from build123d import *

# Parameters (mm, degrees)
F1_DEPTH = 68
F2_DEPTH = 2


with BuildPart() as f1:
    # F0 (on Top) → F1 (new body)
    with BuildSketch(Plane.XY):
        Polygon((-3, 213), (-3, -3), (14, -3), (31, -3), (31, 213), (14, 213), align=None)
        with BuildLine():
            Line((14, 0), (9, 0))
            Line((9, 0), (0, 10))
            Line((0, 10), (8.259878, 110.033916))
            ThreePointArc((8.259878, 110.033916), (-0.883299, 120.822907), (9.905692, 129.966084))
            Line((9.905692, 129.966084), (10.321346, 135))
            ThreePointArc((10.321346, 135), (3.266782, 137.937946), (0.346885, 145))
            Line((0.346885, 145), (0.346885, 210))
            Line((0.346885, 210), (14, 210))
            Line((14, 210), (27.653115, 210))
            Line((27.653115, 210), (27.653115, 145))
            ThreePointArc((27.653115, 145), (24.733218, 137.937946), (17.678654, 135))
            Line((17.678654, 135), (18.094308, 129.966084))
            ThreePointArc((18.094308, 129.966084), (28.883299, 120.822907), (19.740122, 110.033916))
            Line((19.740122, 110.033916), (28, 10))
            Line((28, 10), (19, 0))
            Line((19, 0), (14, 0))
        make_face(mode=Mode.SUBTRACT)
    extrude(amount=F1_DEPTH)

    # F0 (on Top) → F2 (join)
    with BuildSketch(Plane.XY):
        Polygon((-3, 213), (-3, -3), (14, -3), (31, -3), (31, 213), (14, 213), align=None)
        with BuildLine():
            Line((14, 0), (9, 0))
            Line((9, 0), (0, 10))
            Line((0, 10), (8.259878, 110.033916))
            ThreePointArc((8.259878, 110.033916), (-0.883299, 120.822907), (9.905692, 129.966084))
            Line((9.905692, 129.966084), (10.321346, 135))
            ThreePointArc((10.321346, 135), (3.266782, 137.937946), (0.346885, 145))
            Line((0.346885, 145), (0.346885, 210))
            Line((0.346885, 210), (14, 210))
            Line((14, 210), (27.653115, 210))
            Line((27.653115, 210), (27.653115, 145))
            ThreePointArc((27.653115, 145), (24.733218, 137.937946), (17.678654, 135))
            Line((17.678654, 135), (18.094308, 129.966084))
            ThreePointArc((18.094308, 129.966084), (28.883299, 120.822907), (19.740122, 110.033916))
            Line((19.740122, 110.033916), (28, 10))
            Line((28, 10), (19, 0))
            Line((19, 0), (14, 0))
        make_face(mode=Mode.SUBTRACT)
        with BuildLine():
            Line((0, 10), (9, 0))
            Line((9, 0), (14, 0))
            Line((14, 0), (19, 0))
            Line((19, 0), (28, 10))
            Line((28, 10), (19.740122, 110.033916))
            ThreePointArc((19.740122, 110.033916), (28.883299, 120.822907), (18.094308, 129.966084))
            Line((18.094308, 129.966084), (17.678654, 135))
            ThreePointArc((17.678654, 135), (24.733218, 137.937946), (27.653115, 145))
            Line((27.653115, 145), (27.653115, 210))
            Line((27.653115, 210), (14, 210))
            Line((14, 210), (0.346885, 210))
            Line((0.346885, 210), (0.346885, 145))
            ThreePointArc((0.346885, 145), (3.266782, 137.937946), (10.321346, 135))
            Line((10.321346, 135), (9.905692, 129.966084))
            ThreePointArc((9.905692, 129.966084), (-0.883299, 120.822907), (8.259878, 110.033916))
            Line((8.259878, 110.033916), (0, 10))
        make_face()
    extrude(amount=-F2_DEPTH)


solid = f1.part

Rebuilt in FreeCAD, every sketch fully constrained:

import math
import FreeCAD as App
import Part
import Sketcher
Q = App.Units.Quantity


def add_polygon(sketch, points):
    """Adds a closed chain of lines whose ends are joined by coincident constraints."""
    first, n = sketch.GeometryCount, len(points)
    for a, b in zip(points, points[1:] + points[:1]):
        sketch.addGeometry(Part.LineSegment(App.Vector(*a, 0), App.Vector(*b, 0)), False)
    for i in range(n):
        sketch.addConstraint(Sketcher.Constraint("Coincident", first + i, 2, first + (i + 1) % n, 1))

doc = App.newDocument("Part")
body = doc.addObject("PartDesign::Body", "Body")

# Sketch on XY plane
sketch1 = body.newObject("Sketcher::SketchObject", "Sketch")
sketch1.AttachmentSupport = (doc.getObject("XY_Plane"), [""])
sketch1.MapMode = "FlatFace"
add_polygon(sketch1, [(-3, 213), (-3, -3), (31, -3), (31, 213)])  # lines 0-3
sketch1.addGeometry(Part.LineSegment(App.Vector(19, 0, 0), App.Vector(9, 0, 0)), False)  # 4
sketch1.addGeometry(Part.LineSegment(App.Vector(9, 0, 0), App.Vector(0, 10, 0)), False)  # 5
sketch1.addGeometry(Part.LineSegment(App.Vector(0, 10, 0), App.Vector(8.259878, 110.033916, 0)), False)  # 6
sketch1.addGeometry(Part.ArcOfCircle(Part.Circle(App.Vector(9.082785, 120, 0), App.Vector(0, 0, 1), 10), math.radians(85.279753), math.radians(265.279753)), False)  # 7
sketch1.addGeometry(Part.LineSegment(App.Vector(9.905692, 129.966084, 0), App.Vector(10.321346, 135, 0)), False)  # 8
sketch1.addGeometry(Part.ArcOfCircle(Part.Circle(App.Vector(10.346884, 144.999967, 0), App.Vector(0, 0, 1), 9.999999), math.radians(179.99981), math.radians(269.853675)), False)  # 9
sketch1.addGeometry(Part.LineSegment(App.Vector(0.346885, 145, 0), App.Vector(0.346885, 210, 0)), False)  # 10
sketch1.addGeometry(Part.LineSegment(App.Vector(0.346885, 210, 0), App.Vector(27.653115, 210, 0)), False)  # 11
sketch1.addGeometry(Part.LineSegment(App.Vector(27.653115, 210, 0), App.Vector(27.653115, 145, 0)), False)  # 12
sketch1.addGeometry(Part.ArcOfCircle(Part.Circle(App.Vector(17.653116, 144.999967, 0), App.Vector(0, 0, 1), 9.999999), math.radians(-89.853675), math.radians(0.00019)), False)  # 13
sketch1.addGeometry(Part.LineSegment(App.Vector(17.678654, 135, 0), App.Vector(18.094308, 129.966084, 0)), False)  # 14
sketch1.addGeometry(Part.ArcOfCircle(Part.Circle(App.Vector(18.917215, 120, 0), App.Vector(0, 0, 1), 10), math.radians(-85.279753), math.radians(94.720247)), False)  # 15
sketch1.addGeometry(Part.LineSegment(App.Vector(19.740122, 110.033916, 0), App.Vector(28, 10, 0)), False)  # 16
sketch1.addGeometry(Part.LineSegment(App.Vector(28, 10, 0), App.Vector(19, 0, 0)), False)  # 17
sketch1.addConstraint(Sketcher.Constraint("Coincident", 4, 2, 5, 1))
sketch1.addConstraint(Sketcher.Constraint("Coincident", 5, 2, 6, 1))
sketch1.addConstraint(Sketcher.Constraint("Coincident", 6, 2, 7, 2))
sketch1.addConstraint(Sketcher.Constraint("Coincident", 7, 1, 8, 1))
sketch1.addConstraint(Sketcher.Constraint("Coincident", 8, 2, 9, 2))
sketch1.addConstraint(Sketcher.Constraint("Coincident", 9, 1, 10, 1))
sketch1.addConstraint(Sketcher.Constraint("Coincident", 10, 2, 11, 1))
sketch1.addConstraint(Sketcher.Constraint("Coincident", 11, 2, 12, 1))
sketch1.addConstraint(Sketcher.Constraint("Coincident", 12, 2, 13, 2))
sketch1.addConstraint(Sketcher.Constraint("Coincident", 13, 1, 14, 1))
sketch1.addConstraint(Sketcher.Constraint("Coincident", 14, 2, 15, 2))
sketch1.addConstraint(Sketcher.Constraint("Coincident", 15, 1, 16, 1))
sketch1.addConstraint(Sketcher.Constraint("Coincident", 16, 2, 17, 1))
sketch1.addConstraint(Sketcher.Constraint("Coincident", 17, 2, 4, 1))
sketch1.addConstraint(Sketcher.Constraint("Vertical", 0))
sketch1.addConstraint(Sketcher.Constraint("Horizontal", 1))
sketch1.addConstraint(Sketcher.Constraint("Vertical", 2))
sketch1.addConstraint(Sketcher.Constraint("Horizontal", 3))
sketch1.addConstraint(Sketcher.Constraint("Horizontal", 4))
sketch1.addConstraint(Sketcher.Constraint("Vertical", 10))
sketch1.addConstraint(Sketcher.Constraint("Horizontal", 11))
sketch1.addConstraint(Sketcher.Constraint("Vertical", 12))
sketch1.addConstraint(Sketcher.Constraint("Equal", 7, 9))
sketch1.addConstraint(Sketcher.Constraint("Equal", 9, 13))
sketch1.addConstraint(Sketcher.Constraint("Equal", 13, 15))
sketch1.addConstraint(Sketcher.Constraint("PointOnObject", 4, 2, -1))
sketch1.addConstraint(Sketcher.Constraint("PointOnObject", 5, 2, -2))
sketch1.addConstraint(Sketcher.Constraint("Parallel", 6, 8))
sketch1.addConstraint(Sketcher.Constraint("Parallel", 14, 16))
sketch1.addConstraint(Sketcher.Constraint("Horizontal", 9, 3, 13, 3))
sketch1.addConstraint(Sketcher.Constraint("Horizontal", 7, 3, 15, 3))
sketch1.addConstraint(Sketcher.Constraint("Horizontal", 9, 1, 12, 2))
sketch1.addConstraint(Sketcher.Constraint("Horizontal", 7, 1, 14, 2))
sketch1.addConstraint(Sketcher.Constraint("Horizontal", 6, 2, 15, 1))
sketch1.addConstraint(Sketcher.Constraint("Horizontal", 5, 2, 16, 2))
sketch1.addConstraint(Sketcher.Constraint("Equal", 6, 16))
sketch1.addConstraint(Sketcher.Constraint("Equal", 5, 17))
sketch1.addConstraint(Sketcher.Constraint("Radius", 7, Q("10 mm")))
sketch1.addConstraint(Sketcher.Constraint("DistanceX", 1, 1, 1, 2, Q("34 mm")))
sketch1.addConstraint(Sketcher.Constraint("DistanceX", 4, 2, 4, 1, Q("10 mm")))
sketch1.addConstraint(Sketcher.Constraint("DistanceY", 0, 2, 0, 1, Q("216 mm")))
sketch1.addConstraint(Sketcher.Constraint("DistanceY", 10, 1, 10, 2, Q("65 mm")))
sketch1.addConstraint(Sketcher.Constraint("DistanceY", -1, 1, 7, 3, Q("120 mm")))
sketch1.addConstraint(Sketcher.Constraint("DistanceX", 0, 2, -1, 1, Q("3 mm")))
sketch1.addConstraint(Sketcher.Constraint("DistanceY", 0, 2, -1, 1, Q("3 mm")))
sketch1.addConstraint(Sketcher.Constraint("DistanceX", -1, 1, 4, 2, Q("9 mm")))
sketch1.addConstraint(Sketcher.Constraint("DistanceY", -1, 1, 5, 2, Q("10 mm")))
sketch1.addConstraint(Sketcher.Constraint("DistanceY", -1, 1, 8, 2, Q("135 mm")))
sketch1.addConstraint(Sketcher.Constraint("DistanceY", -1, 1, 9, 1, Q("145 mm")))
sketch1.addConstraint(Sketcher.Constraint("DistanceX", 11, 1, 11, 2, Q("27.30623 mm")))
sketch1.addConstraint(Sketcher.Constraint("DistanceX", 7, 3, 9, 3, Q("1.264099 mm")))
sketch1.addConstraint(Sketcher.Constraint("DistanceX", 13, 3, 15, 3, Q("1.264099 mm")))
sketch1.addConstraint(Sketcher.Constraint("DistanceX", -1, 1, 7, 1, Q("9.905692 mm")))
sketch1.addConstraint(Sketcher.Constraint("DistanceX", -1, 1, 15, 1, Q("19.740122 mm")))
pad1 = body.newObject("PartDesign::Pad", "Pad")
pad1.Profile = sketch1
pad1.Length = 68

# Sketch on XY plane
sketch2 = body.newObject("Sketcher::SketchObject", "Sketch001")
sketch2.AttachmentSupport = (doc.getObject("XY_Plane"), [""])
sketch2.MapMode = "FlatFace"
add_polygon(sketch2, [(-3, 213), (-3, -3), (31, -3), (31, 213)])  # lines 0-3
sketch2.addConstraint(Sketcher.Constraint("Vertical", 0))
sketch2.addConstraint(Sketcher.Constraint("Horizontal", 1))
sketch2.addConstraint(Sketcher.Constraint("Vertical", 2))
sketch2.addConstraint(Sketcher.Constraint("Horizontal", 3))
sketch2.addConstraint(Sketcher.Constraint("DistanceX", 1, 1, 1, 2, Q("34 mm")))
sketch2.addConstraint(Sketcher.Constraint("DistanceY", 0, 2, 0, 1, Q("216 mm")))
sketch2.addConstraint(Sketcher.Constraint("DistanceX", 0, 2, -1, 1, Q("3 mm")))
sketch2.addConstraint(Sketcher.Constraint("DistanceY", 0, 2, -1, 1, Q("3 mm")))
pad2 = body.newObject("PartDesign::Pad", "Pad001")
pad2.Profile = sketch2
pad2.Length = 2
pad2.Reversed = True

doc.recompute()
